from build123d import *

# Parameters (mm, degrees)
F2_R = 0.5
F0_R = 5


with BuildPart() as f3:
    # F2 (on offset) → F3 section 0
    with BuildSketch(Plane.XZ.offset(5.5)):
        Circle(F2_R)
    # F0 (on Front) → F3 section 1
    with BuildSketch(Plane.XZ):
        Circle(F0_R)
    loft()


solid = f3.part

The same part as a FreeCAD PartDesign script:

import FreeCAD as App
import Part
import Sketcher

doc = App.newDocument("Part")
body = doc.addObject("PartDesign::Body", "Body")

sketch1 = body.newObject("Sketcher::SketchObject", "Sketch")
sketch1.AttachmentSupport = (doc.getObject("XZ_Plane"), [""])
sketch1.MapMode = "FlatFace"
sketch1.AttachmentOffset = App.Placement(App.Vector(0, 0, 5.5), App.Rotation())
sketch1.addGeometry(Part.Circle(App.Vector(0, 0, 0), App.Vector(0, 0, 1), 0.5), False)
sketch1.addConstraint([
    Sketcher.Constraint("Coincident", 0, 3, -1, 1),
    Sketcher.Constraint("Diameter", 0, 1.0),
])

sketch2 = body.newObject("Sketcher::SketchObject", "Sketch001")
sketch2.AttachmentSupport = (doc.getObject("XZ_Plane"), [""])
sketch2.MapMode = "FlatFace"
sketch2.addGeometry(Part.Circle(App.Vector(0, 0, 0), App.Vector(0, 0, 1), 5), False)
sketch2.addConstraint([
    Sketcher.Constraint("Coincident", 0, 3, -1, 1),
    Sketcher.Constraint("Diameter", 0, 10.0),
])

additiveloft = body.newObject("PartDesign::AdditiveLoft", "AdditiveLoft")
additiveloft.Profile = sketch1
additiveloft.Sections = [sketch2]

doc.recompute()
